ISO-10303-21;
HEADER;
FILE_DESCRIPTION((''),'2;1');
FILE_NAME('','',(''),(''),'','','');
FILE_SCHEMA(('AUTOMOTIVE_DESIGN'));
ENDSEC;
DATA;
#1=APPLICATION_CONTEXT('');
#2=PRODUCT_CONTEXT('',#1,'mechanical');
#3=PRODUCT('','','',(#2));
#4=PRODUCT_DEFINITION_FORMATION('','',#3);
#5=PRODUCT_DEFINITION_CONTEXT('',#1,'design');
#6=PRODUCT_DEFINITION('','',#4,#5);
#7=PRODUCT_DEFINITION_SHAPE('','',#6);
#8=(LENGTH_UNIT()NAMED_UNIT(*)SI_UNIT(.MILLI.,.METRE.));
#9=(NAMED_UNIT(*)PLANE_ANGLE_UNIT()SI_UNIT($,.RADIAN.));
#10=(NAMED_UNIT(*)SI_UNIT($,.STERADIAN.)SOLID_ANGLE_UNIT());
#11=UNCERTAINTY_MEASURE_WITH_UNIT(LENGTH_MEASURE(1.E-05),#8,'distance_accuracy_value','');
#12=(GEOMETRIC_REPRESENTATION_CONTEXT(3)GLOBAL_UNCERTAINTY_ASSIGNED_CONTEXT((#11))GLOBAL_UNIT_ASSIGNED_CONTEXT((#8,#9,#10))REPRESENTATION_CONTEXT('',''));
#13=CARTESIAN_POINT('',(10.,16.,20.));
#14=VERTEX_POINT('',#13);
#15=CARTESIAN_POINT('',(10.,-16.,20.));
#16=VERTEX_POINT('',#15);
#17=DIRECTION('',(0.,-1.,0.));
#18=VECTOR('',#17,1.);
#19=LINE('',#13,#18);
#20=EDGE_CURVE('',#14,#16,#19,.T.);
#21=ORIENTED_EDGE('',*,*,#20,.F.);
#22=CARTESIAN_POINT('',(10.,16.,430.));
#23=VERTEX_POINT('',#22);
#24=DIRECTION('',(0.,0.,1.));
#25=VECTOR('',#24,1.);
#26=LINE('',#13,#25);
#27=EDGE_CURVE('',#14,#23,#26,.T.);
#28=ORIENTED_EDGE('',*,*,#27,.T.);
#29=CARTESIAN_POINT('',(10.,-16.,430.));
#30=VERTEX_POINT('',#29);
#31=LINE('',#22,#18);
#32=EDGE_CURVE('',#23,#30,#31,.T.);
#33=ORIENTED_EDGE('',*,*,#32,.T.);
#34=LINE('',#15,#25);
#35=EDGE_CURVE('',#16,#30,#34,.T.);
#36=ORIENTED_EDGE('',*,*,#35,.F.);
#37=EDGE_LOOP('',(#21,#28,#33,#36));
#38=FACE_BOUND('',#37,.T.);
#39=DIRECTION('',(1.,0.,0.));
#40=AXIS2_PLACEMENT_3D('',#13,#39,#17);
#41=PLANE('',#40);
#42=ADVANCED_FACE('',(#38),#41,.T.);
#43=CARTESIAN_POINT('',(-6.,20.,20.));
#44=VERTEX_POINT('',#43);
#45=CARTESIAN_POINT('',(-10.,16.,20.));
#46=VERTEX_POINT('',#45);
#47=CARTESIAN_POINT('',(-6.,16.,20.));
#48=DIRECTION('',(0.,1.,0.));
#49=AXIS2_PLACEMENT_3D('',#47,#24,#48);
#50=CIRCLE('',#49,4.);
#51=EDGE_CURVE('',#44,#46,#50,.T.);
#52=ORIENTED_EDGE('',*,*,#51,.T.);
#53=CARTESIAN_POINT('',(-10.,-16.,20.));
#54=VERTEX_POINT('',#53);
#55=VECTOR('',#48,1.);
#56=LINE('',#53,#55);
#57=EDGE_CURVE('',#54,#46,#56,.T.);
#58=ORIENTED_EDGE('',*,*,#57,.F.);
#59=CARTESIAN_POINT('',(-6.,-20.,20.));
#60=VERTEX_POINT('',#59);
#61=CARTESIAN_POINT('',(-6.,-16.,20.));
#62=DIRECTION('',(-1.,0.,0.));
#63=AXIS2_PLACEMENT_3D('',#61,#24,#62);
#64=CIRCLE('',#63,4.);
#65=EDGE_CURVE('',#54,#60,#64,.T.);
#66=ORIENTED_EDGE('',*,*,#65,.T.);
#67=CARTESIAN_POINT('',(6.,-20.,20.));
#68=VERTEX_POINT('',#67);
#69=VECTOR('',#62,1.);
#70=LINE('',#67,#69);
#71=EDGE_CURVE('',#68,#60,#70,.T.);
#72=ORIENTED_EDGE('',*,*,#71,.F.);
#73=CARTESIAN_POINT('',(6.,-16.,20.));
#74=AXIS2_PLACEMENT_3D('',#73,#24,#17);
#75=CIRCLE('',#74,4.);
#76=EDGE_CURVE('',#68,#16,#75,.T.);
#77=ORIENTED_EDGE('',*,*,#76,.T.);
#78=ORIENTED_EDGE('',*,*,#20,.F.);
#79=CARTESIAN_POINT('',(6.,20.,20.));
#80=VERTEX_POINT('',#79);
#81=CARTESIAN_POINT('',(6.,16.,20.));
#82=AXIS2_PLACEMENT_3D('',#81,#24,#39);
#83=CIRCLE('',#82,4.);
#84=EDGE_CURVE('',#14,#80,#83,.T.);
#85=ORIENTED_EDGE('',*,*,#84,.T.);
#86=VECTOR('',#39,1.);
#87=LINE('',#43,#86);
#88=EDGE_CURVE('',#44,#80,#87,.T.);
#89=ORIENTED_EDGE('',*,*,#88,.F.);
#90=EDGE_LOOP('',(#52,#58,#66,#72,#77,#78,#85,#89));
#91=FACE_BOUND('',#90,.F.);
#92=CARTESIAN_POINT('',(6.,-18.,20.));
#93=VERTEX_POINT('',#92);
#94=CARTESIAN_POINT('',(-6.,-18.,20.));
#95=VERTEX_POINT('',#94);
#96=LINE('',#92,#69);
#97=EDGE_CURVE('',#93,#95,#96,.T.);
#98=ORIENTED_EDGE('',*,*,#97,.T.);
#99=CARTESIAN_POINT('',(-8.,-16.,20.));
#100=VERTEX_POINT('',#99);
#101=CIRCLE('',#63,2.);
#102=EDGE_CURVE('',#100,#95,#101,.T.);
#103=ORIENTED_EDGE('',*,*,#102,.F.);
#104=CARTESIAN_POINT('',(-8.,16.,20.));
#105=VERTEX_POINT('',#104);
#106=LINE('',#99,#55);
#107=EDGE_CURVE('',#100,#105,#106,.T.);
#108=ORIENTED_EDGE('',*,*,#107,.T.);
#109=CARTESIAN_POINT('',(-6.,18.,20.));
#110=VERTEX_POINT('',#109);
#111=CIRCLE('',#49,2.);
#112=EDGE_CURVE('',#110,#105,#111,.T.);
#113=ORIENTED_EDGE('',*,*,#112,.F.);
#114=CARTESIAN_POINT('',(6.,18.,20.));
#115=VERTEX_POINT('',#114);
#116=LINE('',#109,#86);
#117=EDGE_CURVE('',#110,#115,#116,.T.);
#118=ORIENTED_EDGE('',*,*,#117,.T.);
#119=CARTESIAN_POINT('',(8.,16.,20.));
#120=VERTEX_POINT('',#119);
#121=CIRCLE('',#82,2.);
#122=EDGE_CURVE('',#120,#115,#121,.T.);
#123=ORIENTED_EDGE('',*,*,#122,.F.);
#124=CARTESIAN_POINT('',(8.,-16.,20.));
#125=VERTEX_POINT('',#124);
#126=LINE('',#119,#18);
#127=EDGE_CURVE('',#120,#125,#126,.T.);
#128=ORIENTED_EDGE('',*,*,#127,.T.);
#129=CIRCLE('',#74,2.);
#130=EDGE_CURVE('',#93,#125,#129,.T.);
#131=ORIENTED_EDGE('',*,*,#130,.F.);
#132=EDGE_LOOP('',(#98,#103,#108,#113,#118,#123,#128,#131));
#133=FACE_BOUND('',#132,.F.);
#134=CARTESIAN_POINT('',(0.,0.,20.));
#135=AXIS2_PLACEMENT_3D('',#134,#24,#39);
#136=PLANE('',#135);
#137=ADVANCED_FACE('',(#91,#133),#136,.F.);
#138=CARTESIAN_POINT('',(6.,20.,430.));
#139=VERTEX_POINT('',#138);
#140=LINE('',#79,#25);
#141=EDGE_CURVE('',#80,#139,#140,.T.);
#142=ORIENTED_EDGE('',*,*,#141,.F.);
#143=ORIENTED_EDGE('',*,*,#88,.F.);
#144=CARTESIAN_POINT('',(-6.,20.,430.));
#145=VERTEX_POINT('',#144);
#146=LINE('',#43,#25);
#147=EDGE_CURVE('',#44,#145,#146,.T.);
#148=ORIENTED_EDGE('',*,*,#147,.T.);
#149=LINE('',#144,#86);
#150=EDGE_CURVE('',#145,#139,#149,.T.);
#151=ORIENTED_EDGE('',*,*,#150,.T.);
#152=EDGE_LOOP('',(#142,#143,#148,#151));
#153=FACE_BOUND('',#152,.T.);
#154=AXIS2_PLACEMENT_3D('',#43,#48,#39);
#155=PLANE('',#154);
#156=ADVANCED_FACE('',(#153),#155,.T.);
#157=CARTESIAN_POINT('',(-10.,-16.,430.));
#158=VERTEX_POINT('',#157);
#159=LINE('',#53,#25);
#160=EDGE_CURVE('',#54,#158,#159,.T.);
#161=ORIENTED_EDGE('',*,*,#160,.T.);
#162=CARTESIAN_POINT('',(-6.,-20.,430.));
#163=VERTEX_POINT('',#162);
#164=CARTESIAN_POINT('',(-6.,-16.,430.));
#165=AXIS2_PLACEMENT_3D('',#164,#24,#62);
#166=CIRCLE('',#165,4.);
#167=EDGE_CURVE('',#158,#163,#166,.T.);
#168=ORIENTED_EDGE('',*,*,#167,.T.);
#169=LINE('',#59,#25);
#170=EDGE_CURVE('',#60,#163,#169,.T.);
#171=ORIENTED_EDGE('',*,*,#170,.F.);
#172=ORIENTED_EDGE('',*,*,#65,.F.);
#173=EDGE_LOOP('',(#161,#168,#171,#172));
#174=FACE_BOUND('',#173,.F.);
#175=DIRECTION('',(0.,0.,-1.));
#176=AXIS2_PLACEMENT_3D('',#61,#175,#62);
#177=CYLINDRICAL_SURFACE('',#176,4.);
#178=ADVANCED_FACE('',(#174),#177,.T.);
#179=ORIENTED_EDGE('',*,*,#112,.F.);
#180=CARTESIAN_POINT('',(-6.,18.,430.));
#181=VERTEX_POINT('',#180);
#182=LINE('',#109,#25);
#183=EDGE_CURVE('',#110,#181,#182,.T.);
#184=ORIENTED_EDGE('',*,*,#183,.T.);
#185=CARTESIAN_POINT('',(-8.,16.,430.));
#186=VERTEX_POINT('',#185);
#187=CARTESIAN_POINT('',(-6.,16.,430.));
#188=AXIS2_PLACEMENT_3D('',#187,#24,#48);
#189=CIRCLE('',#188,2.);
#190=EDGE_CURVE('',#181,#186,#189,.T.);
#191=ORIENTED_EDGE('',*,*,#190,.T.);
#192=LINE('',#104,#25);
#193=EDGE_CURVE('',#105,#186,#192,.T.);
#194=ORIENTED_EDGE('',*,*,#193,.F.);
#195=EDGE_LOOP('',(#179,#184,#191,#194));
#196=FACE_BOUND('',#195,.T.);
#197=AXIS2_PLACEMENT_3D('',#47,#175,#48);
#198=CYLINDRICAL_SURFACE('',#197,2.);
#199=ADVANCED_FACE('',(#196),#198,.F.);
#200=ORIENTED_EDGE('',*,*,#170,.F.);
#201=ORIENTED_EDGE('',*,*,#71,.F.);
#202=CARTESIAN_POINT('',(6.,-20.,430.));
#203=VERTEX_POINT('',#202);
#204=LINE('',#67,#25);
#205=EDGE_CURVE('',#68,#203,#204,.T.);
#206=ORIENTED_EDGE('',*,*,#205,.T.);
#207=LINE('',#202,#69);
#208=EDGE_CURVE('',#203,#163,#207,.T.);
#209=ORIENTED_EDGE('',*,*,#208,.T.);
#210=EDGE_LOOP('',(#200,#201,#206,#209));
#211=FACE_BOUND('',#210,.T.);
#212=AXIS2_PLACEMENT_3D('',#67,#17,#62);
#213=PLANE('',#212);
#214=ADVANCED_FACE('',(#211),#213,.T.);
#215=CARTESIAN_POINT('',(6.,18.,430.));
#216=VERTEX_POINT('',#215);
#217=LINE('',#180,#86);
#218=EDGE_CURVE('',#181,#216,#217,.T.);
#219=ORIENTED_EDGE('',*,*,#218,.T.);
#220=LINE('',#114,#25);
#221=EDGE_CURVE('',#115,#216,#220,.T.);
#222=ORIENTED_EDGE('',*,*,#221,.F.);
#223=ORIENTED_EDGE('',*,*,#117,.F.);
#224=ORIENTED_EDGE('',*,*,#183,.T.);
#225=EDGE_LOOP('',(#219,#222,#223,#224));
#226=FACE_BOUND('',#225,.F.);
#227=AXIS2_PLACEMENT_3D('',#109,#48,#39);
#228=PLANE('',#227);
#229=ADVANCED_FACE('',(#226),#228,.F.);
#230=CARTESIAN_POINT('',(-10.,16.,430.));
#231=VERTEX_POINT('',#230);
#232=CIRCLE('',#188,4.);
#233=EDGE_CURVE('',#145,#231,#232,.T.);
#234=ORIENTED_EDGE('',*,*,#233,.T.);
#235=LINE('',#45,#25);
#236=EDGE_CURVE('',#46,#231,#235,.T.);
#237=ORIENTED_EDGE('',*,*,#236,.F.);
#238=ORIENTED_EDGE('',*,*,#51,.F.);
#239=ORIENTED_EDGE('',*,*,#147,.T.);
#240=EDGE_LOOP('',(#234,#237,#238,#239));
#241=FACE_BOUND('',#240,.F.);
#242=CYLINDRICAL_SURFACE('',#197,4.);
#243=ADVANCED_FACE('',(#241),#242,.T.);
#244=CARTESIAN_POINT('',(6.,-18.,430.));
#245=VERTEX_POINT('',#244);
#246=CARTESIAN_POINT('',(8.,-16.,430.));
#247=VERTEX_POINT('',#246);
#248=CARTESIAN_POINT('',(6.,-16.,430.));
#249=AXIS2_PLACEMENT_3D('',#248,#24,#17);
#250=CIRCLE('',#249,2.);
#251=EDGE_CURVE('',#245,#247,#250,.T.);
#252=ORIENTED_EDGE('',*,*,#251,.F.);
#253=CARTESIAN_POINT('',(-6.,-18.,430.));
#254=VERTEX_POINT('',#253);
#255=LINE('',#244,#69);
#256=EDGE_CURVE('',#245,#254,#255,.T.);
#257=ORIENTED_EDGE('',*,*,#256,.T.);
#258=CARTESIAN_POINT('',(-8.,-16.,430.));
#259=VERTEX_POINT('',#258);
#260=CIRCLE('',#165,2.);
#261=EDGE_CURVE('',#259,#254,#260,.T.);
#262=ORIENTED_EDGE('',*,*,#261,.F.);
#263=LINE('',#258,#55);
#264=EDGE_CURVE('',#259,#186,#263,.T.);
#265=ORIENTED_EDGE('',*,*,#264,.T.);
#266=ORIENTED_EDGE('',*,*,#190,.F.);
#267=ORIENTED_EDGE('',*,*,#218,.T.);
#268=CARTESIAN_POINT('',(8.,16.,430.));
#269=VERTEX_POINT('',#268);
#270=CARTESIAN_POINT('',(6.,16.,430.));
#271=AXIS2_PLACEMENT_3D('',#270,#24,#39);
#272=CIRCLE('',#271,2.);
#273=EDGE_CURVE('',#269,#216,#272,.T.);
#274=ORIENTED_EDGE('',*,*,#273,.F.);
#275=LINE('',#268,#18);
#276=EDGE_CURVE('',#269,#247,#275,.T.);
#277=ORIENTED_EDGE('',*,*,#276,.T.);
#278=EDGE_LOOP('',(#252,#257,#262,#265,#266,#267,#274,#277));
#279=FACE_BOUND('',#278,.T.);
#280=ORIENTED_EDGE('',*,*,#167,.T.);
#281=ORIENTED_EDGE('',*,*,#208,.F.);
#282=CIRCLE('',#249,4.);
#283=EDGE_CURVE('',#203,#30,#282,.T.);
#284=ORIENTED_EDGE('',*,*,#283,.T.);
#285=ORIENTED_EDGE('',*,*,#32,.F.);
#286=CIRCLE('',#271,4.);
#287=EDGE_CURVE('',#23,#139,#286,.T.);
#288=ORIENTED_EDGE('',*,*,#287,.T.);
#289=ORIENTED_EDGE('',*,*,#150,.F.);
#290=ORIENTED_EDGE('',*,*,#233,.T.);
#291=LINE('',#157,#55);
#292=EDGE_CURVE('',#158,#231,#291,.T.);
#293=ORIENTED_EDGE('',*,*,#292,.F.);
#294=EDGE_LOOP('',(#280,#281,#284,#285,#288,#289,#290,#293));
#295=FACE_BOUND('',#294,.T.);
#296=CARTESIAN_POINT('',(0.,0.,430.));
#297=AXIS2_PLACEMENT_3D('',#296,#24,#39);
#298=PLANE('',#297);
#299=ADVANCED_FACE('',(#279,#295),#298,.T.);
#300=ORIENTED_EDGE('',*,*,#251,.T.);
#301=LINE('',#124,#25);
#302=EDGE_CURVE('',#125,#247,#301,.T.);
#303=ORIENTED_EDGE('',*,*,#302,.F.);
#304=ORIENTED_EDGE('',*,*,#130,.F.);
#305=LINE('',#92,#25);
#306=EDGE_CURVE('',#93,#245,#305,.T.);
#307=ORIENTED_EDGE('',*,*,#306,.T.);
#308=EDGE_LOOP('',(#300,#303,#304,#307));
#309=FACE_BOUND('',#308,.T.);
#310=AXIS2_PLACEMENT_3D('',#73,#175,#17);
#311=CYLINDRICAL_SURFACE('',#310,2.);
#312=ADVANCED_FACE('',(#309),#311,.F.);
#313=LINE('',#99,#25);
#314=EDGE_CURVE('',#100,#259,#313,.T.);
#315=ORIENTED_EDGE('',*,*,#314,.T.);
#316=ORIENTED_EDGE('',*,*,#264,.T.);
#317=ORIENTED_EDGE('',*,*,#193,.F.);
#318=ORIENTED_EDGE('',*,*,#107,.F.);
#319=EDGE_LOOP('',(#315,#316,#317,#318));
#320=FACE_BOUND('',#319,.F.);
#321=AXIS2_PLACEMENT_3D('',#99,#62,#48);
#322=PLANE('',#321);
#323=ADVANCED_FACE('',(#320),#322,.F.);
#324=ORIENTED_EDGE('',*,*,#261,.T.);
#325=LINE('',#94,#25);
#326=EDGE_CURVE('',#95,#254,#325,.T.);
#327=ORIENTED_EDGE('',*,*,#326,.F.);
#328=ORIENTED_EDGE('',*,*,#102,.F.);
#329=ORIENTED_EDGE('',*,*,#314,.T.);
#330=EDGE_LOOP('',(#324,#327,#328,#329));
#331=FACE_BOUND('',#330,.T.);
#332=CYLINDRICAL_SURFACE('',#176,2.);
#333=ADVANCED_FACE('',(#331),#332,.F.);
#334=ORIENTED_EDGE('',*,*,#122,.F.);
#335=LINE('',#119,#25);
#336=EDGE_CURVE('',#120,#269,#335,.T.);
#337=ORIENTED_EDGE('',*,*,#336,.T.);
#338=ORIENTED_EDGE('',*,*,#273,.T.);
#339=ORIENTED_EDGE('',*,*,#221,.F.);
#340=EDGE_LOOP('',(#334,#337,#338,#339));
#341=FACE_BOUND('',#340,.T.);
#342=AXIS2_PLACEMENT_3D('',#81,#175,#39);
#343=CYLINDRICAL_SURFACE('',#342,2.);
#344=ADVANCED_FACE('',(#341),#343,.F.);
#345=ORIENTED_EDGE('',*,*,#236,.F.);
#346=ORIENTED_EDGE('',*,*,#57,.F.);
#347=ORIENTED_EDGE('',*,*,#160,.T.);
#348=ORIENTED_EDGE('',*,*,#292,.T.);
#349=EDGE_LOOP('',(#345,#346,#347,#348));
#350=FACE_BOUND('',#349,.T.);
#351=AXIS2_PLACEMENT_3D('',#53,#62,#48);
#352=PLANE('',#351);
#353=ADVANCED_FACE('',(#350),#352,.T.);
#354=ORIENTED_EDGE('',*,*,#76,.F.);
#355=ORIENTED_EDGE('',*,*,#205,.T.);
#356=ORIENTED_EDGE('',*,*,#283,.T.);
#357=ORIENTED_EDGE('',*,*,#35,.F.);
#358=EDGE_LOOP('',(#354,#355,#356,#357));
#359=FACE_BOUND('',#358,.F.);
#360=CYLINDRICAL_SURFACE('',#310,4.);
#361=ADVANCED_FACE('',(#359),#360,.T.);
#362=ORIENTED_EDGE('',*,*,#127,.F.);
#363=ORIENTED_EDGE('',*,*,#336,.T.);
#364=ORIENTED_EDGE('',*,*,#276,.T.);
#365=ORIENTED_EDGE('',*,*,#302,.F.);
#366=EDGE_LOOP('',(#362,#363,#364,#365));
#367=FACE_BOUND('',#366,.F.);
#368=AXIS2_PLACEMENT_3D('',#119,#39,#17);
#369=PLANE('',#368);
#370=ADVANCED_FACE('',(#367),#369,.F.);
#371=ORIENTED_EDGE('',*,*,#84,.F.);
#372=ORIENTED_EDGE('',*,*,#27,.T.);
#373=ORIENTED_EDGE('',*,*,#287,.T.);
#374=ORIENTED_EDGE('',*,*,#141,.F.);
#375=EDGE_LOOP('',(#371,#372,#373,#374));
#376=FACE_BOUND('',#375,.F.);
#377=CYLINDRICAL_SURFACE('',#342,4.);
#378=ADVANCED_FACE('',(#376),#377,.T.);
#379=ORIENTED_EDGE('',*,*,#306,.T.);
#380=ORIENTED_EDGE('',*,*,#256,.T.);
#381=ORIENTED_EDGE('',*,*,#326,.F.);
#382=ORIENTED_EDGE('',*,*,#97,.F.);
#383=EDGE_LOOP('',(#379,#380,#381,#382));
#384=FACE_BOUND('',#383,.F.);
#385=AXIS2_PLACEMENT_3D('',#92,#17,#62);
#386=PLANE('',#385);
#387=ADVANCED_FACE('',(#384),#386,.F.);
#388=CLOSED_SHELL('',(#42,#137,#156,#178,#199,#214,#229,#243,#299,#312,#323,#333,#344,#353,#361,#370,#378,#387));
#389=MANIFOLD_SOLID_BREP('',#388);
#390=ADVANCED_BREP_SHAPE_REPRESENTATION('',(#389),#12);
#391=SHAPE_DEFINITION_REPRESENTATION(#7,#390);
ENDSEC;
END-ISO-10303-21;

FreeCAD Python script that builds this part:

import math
import FreeCAD as App
import Part
import Sketcher
from FreeCAD import Vector

doc = App.newDocument("Part")
body = doc.addObject("PartDesign::Body", "Body")

# Sketch on XY plane
sketch1 = doc.addObject("Sketcher::SketchObject", "Sketch")
body.addObject(sketch1)
sketch1.AttachmentSupport = (doc.XY_Plane, [""])
sketch1.MapMode = "FlatFace"
sketch1.AttachmentOffset = App.Placement(Vector(0, 0, 20), App.Rotation())
sketch1.addGeometry([
    Part.LineSegment(Vector(-10, 16, 0), Vector(-10, -16, 0)),  # 0
    Part.ArcOfCircle(Part.Circle(Vector(-6, -16, 0), Vector(0, 0, 1), 4), math.radians(180), math.radians(270)),  # 1
    Part.LineSegment(Vector(-6, -20, 0), Vector(6, -20, 0)),  # 2
    Part.ArcOfCircle(Part.Circle(Vector(6, -16, 0), Vector(0, 0, 1), 4), math.radians(-90), math.radians(0)),  # 3
    Part.LineSegment(Vector(10, -16, 0), Vector(10, 16, 0)),  # 4
    Part.ArcOfCircle(Part.Circle(Vector(6, 16, 0), Vector(0, 0, 1), 4), math.radians(0), math.radians(90)),  # 5
    Part.LineSegment(Vector(6, 20, 0), Vector(-6, 20, 0)),  # 6
    Part.ArcOfCircle(Part.Circle(Vector(-6, 16, 0), Vector(0, 0, 1), 4), math.radians(90), math.radians(180)),  # 7
    Part.ArcOfCircle(Part.Circle(Vector(-6, 16, 0), Vector(0, 0, 1), 2), math.radians(90), math.radians(180)),  # 8
    Part.LineSegment(Vector(-6, 18, 0), Vector(6, 18, 0)),  # 9
    Part.ArcOfCircle(Part.Circle(Vector(6, 16, 0), Vector(0, 0, 1), 2), math.radians(0), math.radians(90)),  # 10
    Part.LineSegment(Vector(8, 16, 0), Vector(8, -16, 0)),  # 11
    Part.ArcOfCircle(Part.Circle(Vector(6, -16, 0), Vector(0, 0, 1), 2), math.radians(-90), math.radians(0)),  # 12
    Part.LineSegment(Vector(6, -18, 0), Vector(-6, -18, 0)),  # 13
    Part.ArcOfCircle(Part.Circle(Vector(-6, -16, 0), Vector(0, 0, 1), 2), math.radians(180), math.radians(270)),  # 14
    Part.LineSegment(Vector(-8, -16, 0), Vector(-8, 16, 0)),  # 15
], False)
sketch1.addConstraint([
    Sketcher.Constraint("Tangent", 0, 2, 1, 1),
    Sketcher.Constraint("Tangent", 1, 2, 2, 1),
    Sketcher.Constraint("Tangent", 2, 2, 3, 1),
    Sketcher.Constraint("Tangent", 3, 2, 4, 1),
    Sketcher.Constraint("Tangent", 4, 2, 5, 1),
    Sketcher.Constraint("Tangent", 5, 2, 6, 1),
    Sketcher.Constraint("Tangent", 6, 2, 7, 1),
    Sketcher.Constraint("Tangent", 7, 2, 0, 1),
    Sketcher.Constraint("Tangent", 8, 1, 9, 1),
    Sketcher.Constraint("Tangent", 9, 2, 10, 2),
    Sketcher.Constraint("Tangent", 10, 1, 11, 1),
    Sketcher.Constraint("Tangent", 11, 2, 12, 2),
    Sketcher.Constraint("Tangent", 12, 1, 13, 1),
    Sketcher.Constraint("Tangent", 13, 2, 14, 2),
    Sketcher.Constraint("Tangent", 14, 1, 15, 1),
    Sketcher.Constraint("Tangent", 15, 2, 8, 2),
    Sketcher.Constraint("Vertical", 0),
    Sketcher.Constraint("Horizontal", 2),
    Sketcher.Constraint("Vertical", 4),
    Sketcher.Constraint("Horizontal", 6),
    Sketcher.Constraint("Horizontal", 9),
    Sketcher.Constraint("Vertical", 11),
    Sketcher.Constraint("Horizontal", 13),
    Sketcher.Constraint("Vertical", 15),
    Sketcher.Constraint("Coincident", 8, 3, 7, 3),
    Sketcher.Constraint("Coincident", 10, 3, 5, 3),
    Sketcher.Constraint("Coincident", 12, 3, 3, 3),
    Sketcher.Constraint("Equal", 1, 3),
    Sketcher.Constraint("Equal", 3, 5),
    Sketcher.Constraint("Equal", 5, 7),
    Sketcher.Constraint("Equal", 12, 14),
    Sketcher.Constraint("Symmetric", 1, 3, 5, 3, -1, 1),
    Sketcher.Constraint("Radius", 1, 4.0),
    Sketcher.Constraint("Radius", 8, 2.0),
    Sketcher.Constraint("DistanceX", 0, 2, -1, 1, 10.0),
    Sketcher.Constraint("DistanceY", 1, 2, -1, 1, 20.0),
])
pad1 = doc.addObject("PartDesign::Pad", "Pad")
body.addObject(pad1)
pad1.Profile = sketch1
pad1.Length = 410

doc.recompute()
